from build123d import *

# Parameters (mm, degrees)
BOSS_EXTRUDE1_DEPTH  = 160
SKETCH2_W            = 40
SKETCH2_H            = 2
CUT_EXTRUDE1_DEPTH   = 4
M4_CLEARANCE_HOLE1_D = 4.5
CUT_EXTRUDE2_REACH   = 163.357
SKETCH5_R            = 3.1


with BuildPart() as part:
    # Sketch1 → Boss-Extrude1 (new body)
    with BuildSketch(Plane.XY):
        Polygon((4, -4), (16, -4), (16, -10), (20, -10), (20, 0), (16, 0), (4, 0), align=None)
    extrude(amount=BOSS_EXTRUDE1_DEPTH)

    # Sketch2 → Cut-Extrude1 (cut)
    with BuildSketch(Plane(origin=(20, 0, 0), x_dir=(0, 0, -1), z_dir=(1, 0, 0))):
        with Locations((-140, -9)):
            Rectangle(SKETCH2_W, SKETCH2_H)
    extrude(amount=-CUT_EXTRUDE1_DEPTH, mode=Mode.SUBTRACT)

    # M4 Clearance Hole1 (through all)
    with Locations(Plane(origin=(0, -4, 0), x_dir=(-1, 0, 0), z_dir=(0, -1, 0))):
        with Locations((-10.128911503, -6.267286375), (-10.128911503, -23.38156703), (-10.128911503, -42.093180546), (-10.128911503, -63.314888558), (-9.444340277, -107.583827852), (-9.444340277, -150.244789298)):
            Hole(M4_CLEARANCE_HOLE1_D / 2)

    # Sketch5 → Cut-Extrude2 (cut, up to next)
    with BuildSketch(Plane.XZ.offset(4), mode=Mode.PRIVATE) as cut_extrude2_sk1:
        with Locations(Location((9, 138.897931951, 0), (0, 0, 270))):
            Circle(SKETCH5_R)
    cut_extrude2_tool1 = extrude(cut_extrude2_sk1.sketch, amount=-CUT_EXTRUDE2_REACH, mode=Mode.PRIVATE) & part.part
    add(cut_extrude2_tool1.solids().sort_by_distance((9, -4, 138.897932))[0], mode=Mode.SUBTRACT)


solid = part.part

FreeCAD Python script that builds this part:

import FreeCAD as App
import Part
import Sketcher
from FreeCAD import Vector


def add_polygon(sketch, points):
    """Adds a closed chain of lines whose ends are joined by coincident constraints."""
    first, n = sketch.GeometryCount, len(points)
    for a, b in zip(points, points[1:] + points[:1]):
        sketch.addGeometry(Part.LineSegment(App.Vector(*a, 0), App.Vector(*b, 0)), False)
    for i in range(n):
        sketch.addConstraint(Sketcher.Constraint("Coincident", first + i, 2, first + (i + 1) % n, 1))

doc = App.newDocument("Part")
body = doc.addObject("PartDesign::Body", "Body")

sketch1 = body.newObject("Sketcher::SketchObject", "Sketch")
sketch1.AttachmentSupport = (doc.getObject("XY_Plane"), [""])
sketch1.MapMode = "FlatFace"
add_polygon(sketch1, [(4, -4), (16, -4), (16, -10), (20, -10), (20, 0), (4, 0)])
sketch1.addConstraint([
    Sketcher.Constraint("Horizontal", 0),
    Sketcher.Constraint("Vertical", 1),
    Sketcher.Constraint("Horizontal", 2),
    Sketcher.Constraint("Vertical", 3),
    Sketcher.Constraint("Horizontal", 4),
    Sketcher.Constraint("Vertical", 5),
    Sketcher.Constraint("PointOnObject", 3, 2, -1),
    Sketcher.Constraint("Equal", 2, 5),
    Sketcher.Constraint("DistanceX", 0, 1, 0, 2, 12.0),
    Sketcher.Constraint("DistanceX", 2, 1, 2, 2, 4.0),
    Sketcher.Constraint("DistanceY", 1, 2, 1, 1, 6.0),
    Sketcher.Constraint("DistanceX", -1, 1, 0, 2, 16.0),
])
pad1 = body.newObject("PartDesign::Pad", "Pad")
pad1.Profile = sketch1
pad1.Length = 160

sketch2 = body.newObject("Sketcher::SketchObject", "Sketch001")
sketch2.AttachmentSupport = (doc.getObject("YZ_Plane"), [""])
sketch2.MapMode = "FlatFace"
sketch2.AttachmentOffset = App.Placement(Vector(0, 0, 20), App.Rotation())
add_polygon(sketch2, [(-8, 160), (-10, 160), (-10, 120), (-8, 120)])
sketch2.addConstraint([
    Sketcher.Constraint("Horizontal", 0),
    Sketcher.Constraint("Vertical", 1),
    Sketcher.Constraint("Horizontal", 2),
    Sketcher.Constraint("Vertical", 3),
    Sketcher.Constraint("DistanceX", 0, 2, 0, 1, 2.0),
    Sketcher.Constraint("DistanceY", 1, 2, 1, 1, 40.0),
    Sketcher.Constraint("DistanceX", 0, 2, -1, 1, 10.0),
    Sketcher.Constraint("DistanceY", -1, 1, 0, 2, 160.0),
])
pocket1 = body.newObject("PartDesign::Pocket", "Pocket")
pocket1.Profile = sketch2
pocket1.Length = 4

sketch3 = body.newObject("Sketcher::SketchObject", "Sketch002")
sketch3.AttachmentSupport = (doc.getObject("XZ_Plane"), [""])
sketch3.MapMode = "FlatFace"
sketch3.AttachmentOffset = App.Placement(Vector(0, 0, 4), App.Rotation())
sketch3.addGeometry([
    Part.Circle(Vector(10.1, 6.3, 0), Vector(0, 0, 1), 2.2),
    Part.Circle(Vector(10.1, 23.4, 0), Vector(0, 0, 1), 2.2),
    Part.Circle(Vector(10.1, 42.1, 0), Vector(0, 0, 1), 2.2),
    Part.Circle(Vector(10.1, 63.3, 0), Vector(0, 0, 1), 2.2),
    Part.Circle(Vector(9.4, 107.6, 0), Vector(0, 0, 1), 2.2),
    Part.Circle(Vector(9.4, 150.2, 0), Vector(0, 0, 1), 2.2),
], False)
sketch3.addConstraint([
    Sketcher.Constraint("Equal", 0, 1),
    Sketcher.Constraint("Equal", 1, 2),
    Sketcher.Constraint("Equal", 2, 3),
    Sketcher.Constraint("Equal", 3, 4),
    Sketcher.Constraint("Equal", 4, 5),
    Sketcher.Constraint("Vertical", 0, 3, 1, 3),
    Sketcher.Constraint("Vertical", 1, 3, 2, 3),
    Sketcher.Constraint("Vertical", 2, 3, 3, 3),
    Sketcher.Constraint("Vertical", 4, 3, 5, 3),
    Sketcher.Constraint("Diameter", 0, 4.5),
    Sketcher.Constraint("DistanceY", 3, 3, 5, 3, 86.929901),
    Sketcher.Constraint("DistanceX", -1, 1, 0, 3, 10.128912),
    Sketcher.Constraint("DistanceY", -1, 1, 2, 3, 42.093181),
    Sketcher.Constraint("DistanceY", -1, 1, 3, 3, 63.314889),
    Sketcher.Constraint("DistanceX", -1, 1, 4, 3, 9.44434),
    Sketcher.Constraint("DistanceY", 0, 3, 1, 3, 17.114281),
    Sketcher.Constraint("DistanceY", 1, 3, 3, 3, 39.933322),
    Sketcher.Constraint("DistanceY", 3, 3, 4, 3, 44.268939),
])
doc.recompute()
hole = body.newObject("PartDesign::Hole", "Hole")
hole.Profile = sketch3
hole.ThreadType = "None"
hole.Diameter = 4.5
hole.DepthType = "ThroughAll"

sketch4 = body.newObject("Sketcher::SketchObject", "Sketch003")
sketch4.AttachmentSupport = (doc.getObject("XZ_Plane"), [""])
sketch4.MapMode = "FlatFace"
sketch4.AttachmentOffset = App.Placement(Vector(0, 0, 4), App.Rotation())
sketch4.addGeometry(Part.Circle(Vector(9, 138.9, 0), Vector(0, 0, 1), 3.1), False)
sketch4.addConstraint([
    Sketcher.Constraint("Diameter", 0, 6.2),
    Sketcher.Constraint("DistanceX", -1, 1, 0, 3, 9.0),
    Sketcher.Constraint("DistanceY", -1, 1, 0, 3, 138.897932),
])
pocket2 = body.newObject("PartDesign::Pocket", "Pocket001")
pocket2.Profile = sketch4
pocket2.Type = "UpToFirst"

doc.recompute()
